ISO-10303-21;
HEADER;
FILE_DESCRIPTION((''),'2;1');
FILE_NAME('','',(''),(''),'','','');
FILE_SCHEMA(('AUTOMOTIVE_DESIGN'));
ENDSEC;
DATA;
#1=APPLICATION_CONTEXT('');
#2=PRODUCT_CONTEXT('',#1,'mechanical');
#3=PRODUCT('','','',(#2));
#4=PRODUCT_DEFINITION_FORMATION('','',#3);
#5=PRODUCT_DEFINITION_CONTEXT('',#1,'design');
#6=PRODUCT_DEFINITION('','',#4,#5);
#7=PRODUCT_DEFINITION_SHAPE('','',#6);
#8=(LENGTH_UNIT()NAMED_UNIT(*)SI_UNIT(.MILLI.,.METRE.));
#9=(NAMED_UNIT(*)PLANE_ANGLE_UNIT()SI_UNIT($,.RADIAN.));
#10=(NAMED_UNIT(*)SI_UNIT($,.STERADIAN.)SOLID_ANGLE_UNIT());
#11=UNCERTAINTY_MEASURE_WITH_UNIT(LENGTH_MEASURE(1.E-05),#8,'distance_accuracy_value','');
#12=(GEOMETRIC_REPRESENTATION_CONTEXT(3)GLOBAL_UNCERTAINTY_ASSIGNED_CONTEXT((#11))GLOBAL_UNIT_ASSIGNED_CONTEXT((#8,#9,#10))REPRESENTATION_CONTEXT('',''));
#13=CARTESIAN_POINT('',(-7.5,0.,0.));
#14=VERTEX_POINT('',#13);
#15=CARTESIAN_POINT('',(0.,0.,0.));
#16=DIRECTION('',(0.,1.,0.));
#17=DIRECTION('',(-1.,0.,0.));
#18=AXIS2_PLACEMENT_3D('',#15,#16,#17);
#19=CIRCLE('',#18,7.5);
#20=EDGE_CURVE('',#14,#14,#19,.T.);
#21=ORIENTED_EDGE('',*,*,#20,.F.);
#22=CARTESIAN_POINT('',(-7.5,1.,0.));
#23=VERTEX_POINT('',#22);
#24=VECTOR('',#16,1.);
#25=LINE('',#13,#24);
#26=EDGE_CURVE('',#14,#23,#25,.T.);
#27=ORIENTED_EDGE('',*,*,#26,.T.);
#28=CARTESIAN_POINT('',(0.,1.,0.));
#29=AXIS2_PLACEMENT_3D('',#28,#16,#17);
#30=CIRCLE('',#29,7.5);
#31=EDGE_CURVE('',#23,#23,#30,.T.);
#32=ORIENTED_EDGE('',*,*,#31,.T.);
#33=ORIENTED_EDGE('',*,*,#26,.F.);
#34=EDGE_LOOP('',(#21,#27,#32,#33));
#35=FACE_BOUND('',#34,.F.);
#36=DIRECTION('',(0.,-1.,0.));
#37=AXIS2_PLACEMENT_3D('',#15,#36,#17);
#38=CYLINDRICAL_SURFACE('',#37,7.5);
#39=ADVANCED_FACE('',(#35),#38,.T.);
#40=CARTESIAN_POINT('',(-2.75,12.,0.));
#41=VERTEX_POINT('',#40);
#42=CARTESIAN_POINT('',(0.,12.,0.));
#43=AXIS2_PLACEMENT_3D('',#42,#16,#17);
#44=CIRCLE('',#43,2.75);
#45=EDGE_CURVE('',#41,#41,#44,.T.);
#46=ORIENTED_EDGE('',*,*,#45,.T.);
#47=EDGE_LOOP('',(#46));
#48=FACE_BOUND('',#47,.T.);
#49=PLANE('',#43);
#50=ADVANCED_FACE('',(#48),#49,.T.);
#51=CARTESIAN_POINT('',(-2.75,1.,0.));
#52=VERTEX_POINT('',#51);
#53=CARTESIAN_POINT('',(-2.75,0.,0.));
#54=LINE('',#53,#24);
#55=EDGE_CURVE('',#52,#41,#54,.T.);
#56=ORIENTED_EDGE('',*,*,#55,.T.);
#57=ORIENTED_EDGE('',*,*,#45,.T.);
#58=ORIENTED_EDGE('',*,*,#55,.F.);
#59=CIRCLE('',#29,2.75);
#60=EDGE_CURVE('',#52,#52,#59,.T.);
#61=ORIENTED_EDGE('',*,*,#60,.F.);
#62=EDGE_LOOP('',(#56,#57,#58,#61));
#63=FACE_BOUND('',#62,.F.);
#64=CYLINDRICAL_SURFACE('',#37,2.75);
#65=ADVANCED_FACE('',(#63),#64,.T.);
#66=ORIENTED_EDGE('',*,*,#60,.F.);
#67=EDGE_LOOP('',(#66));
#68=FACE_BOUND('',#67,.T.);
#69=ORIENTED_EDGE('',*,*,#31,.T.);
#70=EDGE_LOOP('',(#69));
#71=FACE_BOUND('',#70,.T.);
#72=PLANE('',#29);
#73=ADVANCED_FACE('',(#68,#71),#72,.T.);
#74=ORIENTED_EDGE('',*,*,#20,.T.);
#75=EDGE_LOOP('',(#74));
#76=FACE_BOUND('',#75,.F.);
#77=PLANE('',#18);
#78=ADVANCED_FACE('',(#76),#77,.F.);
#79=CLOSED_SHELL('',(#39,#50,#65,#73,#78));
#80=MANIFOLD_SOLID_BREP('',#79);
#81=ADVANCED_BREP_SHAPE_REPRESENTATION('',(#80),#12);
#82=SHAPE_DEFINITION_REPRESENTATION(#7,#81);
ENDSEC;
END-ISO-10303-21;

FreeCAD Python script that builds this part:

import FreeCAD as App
import Part
import Sketcher

doc = App.newDocument("Part")
body = doc.addObject("PartDesign::Body", "Body")

# Sketch on XZ plane
sketch1 = body.newObject("Sketcher::SketchObject", "Sketch")
sketch1.AttachmentSupport = (doc.getObject("XZ_Plane"), [""])
sketch1.MapMode = "FlatFace"
sketch1.addGeometry([
    Part.Circle(App.Vector(0, 0, 0), App.Vector(0, 0, 1), 7.5),
    Part.Circle(App.Vector(0, 0, 0), App.Vector(0, 0, 1), 2.8),
], False)
sketch1.addConstraint([
    Sketcher.Constraint("Coincident", 0, 3, -1, 1),
    Sketcher.Constraint("Coincident", 1, 3, -1, 1),
    Sketcher.Constraint("Diameter", 0, 15.0),
    Sketcher.Constraint("Diameter", 1, 5.5),
])
pad1 = body.newObject("PartDesign::Pad", "Pad")
pad1.Profile = sketch1
pad1.Length = 1
pad1.Reversed = True

# Sketch on XZ plane
sketch2 = body.newObject("Sketcher::SketchObject", "Sketch001")
sketch2.AttachmentSupport = (doc.getObject("XZ_Plane"), [""])
sketch2.MapMode = "FlatFace"
sketch2.addGeometry(Part.Circle(App.Vector(0, 0, 0), App.Vector(0, 0, 1), 2.8), False)
sketch2.addConstraint([
    Sketcher.Constraint("Coincident", 0, 3, -1, 1),
    Sketcher.Constraint("Diameter", 0, 5.5),
])
pad2 = body.newObject("PartDesign::Pad", "Pad001")
pad2.Profile = sketch2
pad2.Length = 12
pad2.Reversed = True

doc.recompute()
